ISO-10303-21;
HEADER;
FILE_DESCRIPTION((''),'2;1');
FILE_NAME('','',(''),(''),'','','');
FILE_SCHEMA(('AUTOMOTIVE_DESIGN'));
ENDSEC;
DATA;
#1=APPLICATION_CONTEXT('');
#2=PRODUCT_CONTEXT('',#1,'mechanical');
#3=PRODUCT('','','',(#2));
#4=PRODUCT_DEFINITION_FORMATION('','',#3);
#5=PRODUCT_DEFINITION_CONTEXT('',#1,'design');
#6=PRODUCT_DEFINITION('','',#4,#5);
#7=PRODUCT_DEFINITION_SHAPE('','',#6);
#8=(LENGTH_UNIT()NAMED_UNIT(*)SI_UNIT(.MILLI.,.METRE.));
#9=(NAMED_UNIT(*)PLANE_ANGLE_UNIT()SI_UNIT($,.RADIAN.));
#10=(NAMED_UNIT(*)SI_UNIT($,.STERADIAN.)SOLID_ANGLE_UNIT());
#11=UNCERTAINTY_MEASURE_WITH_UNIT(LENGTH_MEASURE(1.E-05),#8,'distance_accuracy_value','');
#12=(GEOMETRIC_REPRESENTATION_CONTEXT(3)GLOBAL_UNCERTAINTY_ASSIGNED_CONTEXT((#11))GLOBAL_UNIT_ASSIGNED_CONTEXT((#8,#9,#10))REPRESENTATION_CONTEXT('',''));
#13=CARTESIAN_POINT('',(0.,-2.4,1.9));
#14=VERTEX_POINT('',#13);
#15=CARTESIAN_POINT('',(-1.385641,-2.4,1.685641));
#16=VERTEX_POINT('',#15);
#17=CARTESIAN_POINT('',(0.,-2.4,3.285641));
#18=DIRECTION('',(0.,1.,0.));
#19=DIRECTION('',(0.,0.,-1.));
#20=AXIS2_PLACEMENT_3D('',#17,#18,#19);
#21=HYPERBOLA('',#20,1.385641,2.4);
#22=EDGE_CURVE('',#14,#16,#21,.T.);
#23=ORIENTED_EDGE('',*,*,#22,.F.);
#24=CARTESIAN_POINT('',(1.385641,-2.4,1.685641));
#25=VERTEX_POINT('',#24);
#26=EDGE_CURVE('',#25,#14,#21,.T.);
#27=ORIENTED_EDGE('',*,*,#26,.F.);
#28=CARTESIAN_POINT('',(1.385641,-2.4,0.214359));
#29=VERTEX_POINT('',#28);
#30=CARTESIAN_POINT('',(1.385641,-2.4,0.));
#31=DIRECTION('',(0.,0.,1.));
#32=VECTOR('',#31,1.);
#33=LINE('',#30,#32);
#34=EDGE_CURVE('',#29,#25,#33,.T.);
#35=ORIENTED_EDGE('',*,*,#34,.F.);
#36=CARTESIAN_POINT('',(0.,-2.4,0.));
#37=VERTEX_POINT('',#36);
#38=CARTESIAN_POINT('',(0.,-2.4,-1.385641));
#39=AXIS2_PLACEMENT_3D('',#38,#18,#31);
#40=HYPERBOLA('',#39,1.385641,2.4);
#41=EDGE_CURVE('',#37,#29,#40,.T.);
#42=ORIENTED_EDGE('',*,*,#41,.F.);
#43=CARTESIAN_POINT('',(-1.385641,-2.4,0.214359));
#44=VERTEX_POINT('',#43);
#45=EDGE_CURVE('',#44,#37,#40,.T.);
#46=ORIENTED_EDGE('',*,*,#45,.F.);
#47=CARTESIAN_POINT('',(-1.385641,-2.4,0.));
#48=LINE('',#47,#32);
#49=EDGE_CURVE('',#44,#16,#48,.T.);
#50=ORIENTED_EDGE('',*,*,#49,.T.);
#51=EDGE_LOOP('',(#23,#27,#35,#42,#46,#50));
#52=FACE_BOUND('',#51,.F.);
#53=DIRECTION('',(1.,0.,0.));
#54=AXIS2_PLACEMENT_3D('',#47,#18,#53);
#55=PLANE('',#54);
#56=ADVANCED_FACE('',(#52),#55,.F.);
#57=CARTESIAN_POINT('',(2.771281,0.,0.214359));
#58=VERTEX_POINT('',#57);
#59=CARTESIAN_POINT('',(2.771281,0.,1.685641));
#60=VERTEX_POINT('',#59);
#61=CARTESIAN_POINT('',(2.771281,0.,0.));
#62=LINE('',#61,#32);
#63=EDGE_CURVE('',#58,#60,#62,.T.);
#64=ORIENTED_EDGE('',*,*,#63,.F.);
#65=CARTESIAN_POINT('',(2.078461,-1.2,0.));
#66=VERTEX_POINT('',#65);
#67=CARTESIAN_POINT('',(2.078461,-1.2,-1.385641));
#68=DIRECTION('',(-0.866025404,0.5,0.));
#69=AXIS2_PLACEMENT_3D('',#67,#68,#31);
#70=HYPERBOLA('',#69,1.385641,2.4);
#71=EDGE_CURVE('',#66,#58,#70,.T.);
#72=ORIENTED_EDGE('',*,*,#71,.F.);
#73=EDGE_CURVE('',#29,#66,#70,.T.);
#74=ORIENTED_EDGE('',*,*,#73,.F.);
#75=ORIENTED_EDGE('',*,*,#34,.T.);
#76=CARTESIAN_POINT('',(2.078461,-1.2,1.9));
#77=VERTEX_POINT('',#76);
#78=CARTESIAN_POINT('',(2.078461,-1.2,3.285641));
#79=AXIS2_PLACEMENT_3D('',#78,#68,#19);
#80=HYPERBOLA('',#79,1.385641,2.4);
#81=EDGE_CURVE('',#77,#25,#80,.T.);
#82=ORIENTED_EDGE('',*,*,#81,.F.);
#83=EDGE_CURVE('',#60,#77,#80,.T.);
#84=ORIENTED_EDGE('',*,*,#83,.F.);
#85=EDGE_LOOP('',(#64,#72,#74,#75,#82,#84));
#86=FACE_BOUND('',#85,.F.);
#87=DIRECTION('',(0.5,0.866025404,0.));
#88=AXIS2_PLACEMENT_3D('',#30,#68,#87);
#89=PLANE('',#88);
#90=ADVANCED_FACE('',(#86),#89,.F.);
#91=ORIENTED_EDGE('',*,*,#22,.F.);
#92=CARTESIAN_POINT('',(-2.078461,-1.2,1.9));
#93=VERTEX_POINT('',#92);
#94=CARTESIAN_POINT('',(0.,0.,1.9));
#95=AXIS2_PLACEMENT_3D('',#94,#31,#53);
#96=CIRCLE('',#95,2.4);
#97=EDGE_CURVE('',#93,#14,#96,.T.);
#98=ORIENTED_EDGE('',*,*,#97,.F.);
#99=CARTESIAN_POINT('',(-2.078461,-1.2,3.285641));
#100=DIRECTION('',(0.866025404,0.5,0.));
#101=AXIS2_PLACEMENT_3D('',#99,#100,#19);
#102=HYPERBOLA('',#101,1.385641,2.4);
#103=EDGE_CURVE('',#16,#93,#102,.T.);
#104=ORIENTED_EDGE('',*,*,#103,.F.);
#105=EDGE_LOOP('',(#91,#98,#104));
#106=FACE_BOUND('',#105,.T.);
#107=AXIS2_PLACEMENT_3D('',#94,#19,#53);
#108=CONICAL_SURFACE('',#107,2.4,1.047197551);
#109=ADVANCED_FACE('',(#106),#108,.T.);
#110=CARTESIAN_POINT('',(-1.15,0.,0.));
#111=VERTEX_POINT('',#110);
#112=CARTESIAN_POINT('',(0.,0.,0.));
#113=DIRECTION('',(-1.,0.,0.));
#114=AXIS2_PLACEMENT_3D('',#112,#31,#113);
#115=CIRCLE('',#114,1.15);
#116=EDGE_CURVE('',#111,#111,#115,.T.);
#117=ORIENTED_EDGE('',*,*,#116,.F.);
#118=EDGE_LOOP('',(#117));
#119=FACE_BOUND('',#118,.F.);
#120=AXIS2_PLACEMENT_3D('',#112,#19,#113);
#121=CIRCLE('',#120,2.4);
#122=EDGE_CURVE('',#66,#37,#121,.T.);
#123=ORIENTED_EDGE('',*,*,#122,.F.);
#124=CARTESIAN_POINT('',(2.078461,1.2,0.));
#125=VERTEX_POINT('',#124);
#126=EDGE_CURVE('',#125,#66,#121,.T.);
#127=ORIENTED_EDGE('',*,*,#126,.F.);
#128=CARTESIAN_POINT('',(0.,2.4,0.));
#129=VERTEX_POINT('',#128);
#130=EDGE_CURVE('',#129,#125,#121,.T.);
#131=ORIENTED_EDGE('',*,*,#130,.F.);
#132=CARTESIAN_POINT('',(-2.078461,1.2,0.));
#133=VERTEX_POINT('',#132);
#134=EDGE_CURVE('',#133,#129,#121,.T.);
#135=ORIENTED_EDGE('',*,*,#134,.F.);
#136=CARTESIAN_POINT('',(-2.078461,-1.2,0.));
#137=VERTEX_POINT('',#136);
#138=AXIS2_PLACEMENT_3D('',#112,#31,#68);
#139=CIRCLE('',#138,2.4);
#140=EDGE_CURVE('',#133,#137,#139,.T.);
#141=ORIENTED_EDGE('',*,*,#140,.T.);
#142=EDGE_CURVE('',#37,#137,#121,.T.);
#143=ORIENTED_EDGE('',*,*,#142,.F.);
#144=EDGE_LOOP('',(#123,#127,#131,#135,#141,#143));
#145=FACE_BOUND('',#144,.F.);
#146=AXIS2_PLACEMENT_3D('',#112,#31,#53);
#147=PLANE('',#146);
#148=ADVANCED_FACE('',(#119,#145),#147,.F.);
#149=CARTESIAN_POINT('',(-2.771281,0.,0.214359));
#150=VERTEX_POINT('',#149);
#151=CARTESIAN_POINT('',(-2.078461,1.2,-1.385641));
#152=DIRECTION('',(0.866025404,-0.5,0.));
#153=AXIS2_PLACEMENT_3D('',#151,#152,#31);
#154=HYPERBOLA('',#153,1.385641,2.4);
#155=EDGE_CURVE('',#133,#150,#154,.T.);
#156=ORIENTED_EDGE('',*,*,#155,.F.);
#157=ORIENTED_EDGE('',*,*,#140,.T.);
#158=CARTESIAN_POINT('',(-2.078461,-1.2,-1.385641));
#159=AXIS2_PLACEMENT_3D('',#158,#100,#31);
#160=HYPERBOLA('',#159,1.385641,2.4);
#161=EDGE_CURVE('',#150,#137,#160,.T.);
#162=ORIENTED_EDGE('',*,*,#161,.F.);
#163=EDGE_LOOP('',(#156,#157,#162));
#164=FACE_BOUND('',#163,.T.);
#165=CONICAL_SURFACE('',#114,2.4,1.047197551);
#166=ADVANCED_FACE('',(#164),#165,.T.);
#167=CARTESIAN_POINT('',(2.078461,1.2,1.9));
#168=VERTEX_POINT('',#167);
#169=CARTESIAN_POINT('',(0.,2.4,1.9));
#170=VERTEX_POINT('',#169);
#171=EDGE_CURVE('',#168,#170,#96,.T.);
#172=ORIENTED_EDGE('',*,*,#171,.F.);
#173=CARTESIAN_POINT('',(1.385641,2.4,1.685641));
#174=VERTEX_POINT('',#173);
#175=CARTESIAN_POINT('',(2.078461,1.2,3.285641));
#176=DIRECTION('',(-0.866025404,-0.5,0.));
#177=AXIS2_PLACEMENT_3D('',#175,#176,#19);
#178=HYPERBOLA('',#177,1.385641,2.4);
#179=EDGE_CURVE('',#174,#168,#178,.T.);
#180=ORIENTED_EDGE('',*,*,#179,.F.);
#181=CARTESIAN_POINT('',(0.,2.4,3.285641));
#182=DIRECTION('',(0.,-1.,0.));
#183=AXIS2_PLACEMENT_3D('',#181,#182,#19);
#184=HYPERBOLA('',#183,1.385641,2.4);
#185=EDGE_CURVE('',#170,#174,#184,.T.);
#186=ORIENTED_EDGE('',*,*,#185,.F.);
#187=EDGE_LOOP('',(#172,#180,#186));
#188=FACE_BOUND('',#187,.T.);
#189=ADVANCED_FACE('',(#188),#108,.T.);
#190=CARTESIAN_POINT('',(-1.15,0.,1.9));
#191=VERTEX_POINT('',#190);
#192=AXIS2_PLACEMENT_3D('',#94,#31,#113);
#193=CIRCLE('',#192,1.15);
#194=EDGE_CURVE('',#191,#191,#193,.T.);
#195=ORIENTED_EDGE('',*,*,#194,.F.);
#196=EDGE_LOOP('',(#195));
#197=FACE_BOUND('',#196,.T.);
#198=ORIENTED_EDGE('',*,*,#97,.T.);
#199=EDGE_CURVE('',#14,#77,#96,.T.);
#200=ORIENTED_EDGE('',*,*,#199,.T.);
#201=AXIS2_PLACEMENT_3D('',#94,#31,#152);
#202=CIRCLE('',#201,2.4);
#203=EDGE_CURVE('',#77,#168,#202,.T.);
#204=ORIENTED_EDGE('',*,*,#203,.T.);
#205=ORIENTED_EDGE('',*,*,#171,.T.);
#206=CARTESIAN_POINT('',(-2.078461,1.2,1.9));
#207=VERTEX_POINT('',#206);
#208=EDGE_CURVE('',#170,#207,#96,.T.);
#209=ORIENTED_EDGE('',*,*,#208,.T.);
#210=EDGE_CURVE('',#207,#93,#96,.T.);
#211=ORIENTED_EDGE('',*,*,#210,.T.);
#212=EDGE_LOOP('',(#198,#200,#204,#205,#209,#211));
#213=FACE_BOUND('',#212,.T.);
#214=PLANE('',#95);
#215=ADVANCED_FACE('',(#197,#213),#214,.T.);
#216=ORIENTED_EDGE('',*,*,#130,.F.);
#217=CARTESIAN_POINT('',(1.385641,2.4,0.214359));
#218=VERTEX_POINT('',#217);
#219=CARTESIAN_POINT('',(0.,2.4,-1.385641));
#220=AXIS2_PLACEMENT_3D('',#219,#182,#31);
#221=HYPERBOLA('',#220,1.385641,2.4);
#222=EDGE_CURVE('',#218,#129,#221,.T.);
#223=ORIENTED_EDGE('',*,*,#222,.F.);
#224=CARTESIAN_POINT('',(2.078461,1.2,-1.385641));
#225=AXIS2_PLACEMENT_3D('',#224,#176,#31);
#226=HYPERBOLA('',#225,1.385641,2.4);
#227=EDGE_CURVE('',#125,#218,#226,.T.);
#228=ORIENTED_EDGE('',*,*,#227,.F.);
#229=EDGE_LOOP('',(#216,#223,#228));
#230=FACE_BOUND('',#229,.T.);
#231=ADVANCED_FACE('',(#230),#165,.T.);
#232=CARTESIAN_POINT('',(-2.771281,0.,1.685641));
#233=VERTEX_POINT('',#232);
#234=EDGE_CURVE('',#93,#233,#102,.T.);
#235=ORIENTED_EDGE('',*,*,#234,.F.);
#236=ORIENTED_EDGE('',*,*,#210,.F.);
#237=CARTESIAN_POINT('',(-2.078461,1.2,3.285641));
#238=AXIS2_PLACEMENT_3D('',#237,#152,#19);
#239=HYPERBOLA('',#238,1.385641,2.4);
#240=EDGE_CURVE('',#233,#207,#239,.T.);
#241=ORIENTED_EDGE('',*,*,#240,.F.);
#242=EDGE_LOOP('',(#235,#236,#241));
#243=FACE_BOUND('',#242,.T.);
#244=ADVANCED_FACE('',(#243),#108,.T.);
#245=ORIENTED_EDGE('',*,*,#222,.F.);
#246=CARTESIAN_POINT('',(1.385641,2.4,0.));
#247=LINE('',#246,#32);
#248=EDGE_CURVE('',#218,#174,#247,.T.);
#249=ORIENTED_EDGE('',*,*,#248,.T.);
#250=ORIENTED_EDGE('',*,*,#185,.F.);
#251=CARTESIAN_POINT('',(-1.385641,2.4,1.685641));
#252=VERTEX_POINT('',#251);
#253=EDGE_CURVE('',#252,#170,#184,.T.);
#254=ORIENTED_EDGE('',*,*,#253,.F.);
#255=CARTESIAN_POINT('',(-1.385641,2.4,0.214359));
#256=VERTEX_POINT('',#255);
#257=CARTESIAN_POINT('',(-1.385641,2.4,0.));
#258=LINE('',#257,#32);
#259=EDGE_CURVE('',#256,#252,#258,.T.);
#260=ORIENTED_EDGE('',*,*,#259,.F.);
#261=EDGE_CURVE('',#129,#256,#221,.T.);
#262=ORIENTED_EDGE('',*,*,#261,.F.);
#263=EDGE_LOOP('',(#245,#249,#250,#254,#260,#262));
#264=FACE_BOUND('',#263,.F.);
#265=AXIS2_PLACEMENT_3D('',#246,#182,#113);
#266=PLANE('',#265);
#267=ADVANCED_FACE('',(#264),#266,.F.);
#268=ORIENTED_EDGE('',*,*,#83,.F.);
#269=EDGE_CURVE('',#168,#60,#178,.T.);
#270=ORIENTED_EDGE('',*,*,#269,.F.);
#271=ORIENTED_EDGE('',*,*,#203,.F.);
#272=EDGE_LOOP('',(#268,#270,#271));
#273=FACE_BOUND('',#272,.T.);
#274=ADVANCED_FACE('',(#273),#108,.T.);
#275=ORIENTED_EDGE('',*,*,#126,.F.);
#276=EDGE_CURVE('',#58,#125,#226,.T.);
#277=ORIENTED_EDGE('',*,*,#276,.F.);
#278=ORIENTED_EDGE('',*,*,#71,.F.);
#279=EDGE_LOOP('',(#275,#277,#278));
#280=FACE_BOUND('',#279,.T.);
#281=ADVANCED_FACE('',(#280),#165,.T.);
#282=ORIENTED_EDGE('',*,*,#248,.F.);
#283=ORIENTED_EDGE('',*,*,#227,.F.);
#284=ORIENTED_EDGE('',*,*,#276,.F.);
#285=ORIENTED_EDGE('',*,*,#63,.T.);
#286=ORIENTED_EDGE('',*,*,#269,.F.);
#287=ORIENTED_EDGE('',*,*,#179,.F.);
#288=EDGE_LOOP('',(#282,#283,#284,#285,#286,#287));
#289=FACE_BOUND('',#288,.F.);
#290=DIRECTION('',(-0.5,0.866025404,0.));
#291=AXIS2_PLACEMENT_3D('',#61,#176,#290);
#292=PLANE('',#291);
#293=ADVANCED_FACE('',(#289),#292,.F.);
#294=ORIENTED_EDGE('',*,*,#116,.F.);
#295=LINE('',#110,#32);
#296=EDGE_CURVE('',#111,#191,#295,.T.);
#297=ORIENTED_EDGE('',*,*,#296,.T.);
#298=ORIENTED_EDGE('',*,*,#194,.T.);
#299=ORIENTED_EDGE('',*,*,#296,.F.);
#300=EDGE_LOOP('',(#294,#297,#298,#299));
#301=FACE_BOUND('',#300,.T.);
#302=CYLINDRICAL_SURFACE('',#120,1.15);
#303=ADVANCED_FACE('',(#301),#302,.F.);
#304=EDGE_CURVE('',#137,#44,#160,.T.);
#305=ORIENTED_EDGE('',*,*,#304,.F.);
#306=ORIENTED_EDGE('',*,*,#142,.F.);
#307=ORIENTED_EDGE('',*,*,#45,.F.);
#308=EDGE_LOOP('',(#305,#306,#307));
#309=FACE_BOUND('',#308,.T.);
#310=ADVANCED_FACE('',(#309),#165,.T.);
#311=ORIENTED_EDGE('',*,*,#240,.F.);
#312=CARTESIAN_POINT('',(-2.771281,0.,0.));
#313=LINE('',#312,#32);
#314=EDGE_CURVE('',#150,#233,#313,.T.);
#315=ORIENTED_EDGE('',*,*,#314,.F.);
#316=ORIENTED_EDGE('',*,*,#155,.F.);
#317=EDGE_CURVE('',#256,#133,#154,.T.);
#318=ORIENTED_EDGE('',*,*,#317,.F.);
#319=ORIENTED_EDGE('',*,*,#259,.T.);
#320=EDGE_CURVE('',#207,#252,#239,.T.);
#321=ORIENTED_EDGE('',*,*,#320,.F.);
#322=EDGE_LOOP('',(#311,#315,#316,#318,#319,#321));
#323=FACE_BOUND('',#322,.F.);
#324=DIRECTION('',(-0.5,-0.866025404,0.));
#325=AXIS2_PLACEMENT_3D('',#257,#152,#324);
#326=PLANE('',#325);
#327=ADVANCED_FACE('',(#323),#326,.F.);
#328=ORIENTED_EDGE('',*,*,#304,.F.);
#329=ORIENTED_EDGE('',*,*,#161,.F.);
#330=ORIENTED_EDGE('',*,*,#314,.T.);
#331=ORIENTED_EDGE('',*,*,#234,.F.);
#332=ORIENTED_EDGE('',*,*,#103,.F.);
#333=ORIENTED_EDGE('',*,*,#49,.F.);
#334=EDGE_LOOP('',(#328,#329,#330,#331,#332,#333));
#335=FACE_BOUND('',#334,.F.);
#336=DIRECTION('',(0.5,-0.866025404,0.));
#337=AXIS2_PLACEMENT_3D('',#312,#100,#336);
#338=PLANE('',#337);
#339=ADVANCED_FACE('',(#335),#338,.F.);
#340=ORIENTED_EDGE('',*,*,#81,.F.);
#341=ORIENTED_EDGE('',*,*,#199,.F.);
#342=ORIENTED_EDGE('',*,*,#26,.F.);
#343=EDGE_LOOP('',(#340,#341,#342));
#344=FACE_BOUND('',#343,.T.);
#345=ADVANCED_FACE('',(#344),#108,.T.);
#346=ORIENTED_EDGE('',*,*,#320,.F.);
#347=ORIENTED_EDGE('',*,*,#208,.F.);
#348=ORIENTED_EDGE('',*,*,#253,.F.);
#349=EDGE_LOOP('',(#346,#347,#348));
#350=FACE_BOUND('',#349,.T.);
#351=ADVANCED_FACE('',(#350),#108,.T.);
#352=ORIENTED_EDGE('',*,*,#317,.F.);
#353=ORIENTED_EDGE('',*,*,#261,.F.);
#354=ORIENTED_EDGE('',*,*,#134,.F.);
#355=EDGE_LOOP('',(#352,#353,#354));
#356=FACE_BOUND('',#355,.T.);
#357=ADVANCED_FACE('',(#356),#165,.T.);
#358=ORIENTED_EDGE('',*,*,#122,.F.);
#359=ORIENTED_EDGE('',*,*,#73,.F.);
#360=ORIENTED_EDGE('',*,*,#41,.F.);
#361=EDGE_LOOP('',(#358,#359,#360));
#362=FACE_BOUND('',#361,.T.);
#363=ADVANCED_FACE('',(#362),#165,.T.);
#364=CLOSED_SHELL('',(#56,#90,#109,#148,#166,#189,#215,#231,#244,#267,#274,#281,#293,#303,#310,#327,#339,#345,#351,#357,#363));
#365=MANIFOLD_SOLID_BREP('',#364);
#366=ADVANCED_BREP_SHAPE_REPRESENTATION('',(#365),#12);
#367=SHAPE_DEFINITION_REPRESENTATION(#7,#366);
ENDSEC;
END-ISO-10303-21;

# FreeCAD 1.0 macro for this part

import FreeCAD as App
import Part
import Sketcher
from FreeCAD import Vector
Q = App.Units.Quantity


def faces_at(feature, points):
    """Names of the faces that lie closest to the given points."""
    faces = feature.Shape.Faces
    near = lambda p: min(range(len(faces)), key=lambda i: faces[i].distToShape(Part.Vertex(*p))[0])
    return sorted({f"Face{near(p) + 1}" for p in points})

doc = App.newDocument("Part")
body = doc.addObject("PartDesign::Body", "Body")

# Sketch on XY plane
sketch1 = body.newObject("Sketcher::SketchObject", "Sketch")
sketch1.AttachmentSupport = (doc.getObject("XY_Plane"), [""])
sketch1.MapMode = "FlatFace"
sketch1.addGeometry([
    Part.LineSegment(Vector(-1.4, 2.4, 0), Vector(-2.8, 0, 0)),  # 0
    Part.LineSegment(Vector(-2.8, 0, 0), Vector(-1.4, -2.4, 0)),  # 1
    Part.LineSegment(Vector(-1.4, -2.4, 0), Vector(1.4, -2.4, 0)),  # 2
    Part.LineSegment(Vector(1.4, -2.4, 0), Vector(2.8, 0, 0)),  # 3
    Part.LineSegment(Vector(2.8, 0, 0), Vector(1.4, 2.4, 0)),  # 4
    Part.LineSegment(Vector(1.4, 2.4, 0), Vector(-1.4, 2.4, 0)),  # 5
    Part.Circle(Vector(0, 0, 0), Vector(0, 0, 1), 1.1),  # 6
], False)
sketch1.addConstraint([
    Sketcher.Constraint("Coincident", 0, 2, 1, 1),
    Sketcher.Constraint("Coincident", 1, 2, 2, 1),
    Sketcher.Constraint("Coincident", 2, 2, 3, 1),
    Sketcher.Constraint("Coincident", 3, 2, 4, 1),
    Sketcher.Constraint("Coincident", 4, 2, 5, 1),
    Sketcher.Constraint("Coincident", 5, 2, 0, 1),
    Sketcher.Constraint("Horizontal", 2),
    Sketcher.Constraint("Horizontal", 5),
    Sketcher.Constraint("Coincident", 6, 3, -1, 1),
    Sketcher.Constraint("Symmetric", 0, 2, 3, 2, -1, 1),
    Sketcher.Constraint("Symmetric", 1, 2, 4, 2, -1, 1),
    Sketcher.Constraint("PointOnObject", 0, 2, -1),
    Sketcher.Constraint("Parallel", 0, 3),
    Sketcher.Constraint("Vertical", 2, 2, 4, 2),
    Sketcher.Constraint("Diameter", 6, 2.3),
    Sketcher.Constraint("Angle", 0, Q("-120 deg")),
    Sketcher.Constraint("DistanceY", 1, 2, -1, 1, 2.4),
    Sketcher.Constraint("DistanceX", 2, 1, 2, 2, 2.771281),
])
pad1 = body.newObject("PartDesign::Pad", "Pad")
pad1.Profile = sketch1
pad1.Length = 1.9
body2 = doc.addObject("PartDesign::Body", "Body001")

# Sketch on XY plane
sketch2 = body2.newObject("Sketcher::SketchObject", "Sketch001")
sketch2.AttachmentSupport = (doc.getObject("XY_Plane001"), [""])
sketch2.MapMode = "FlatFace"
sketch2.AttachmentOffset = App.Placement(Vector(0, 0, 1.9), App.Rotation())
sketch2.addGeometry([
    Part.LineSegment(Vector(-21.8, 21.5, 0), Vector(-21.8, -21.5, 0)),  # 0
    Part.LineSegment(Vector(-21.8, -21.5, 0), Vector(21.8, -21.5, 0)),  # 1
    Part.LineSegment(Vector(21.8, -21.5, 0), Vector(21.8, 21.5, 0)),  # 2
    Part.LineSegment(Vector(21.8, 21.5, 0), Vector(-21.8, 21.5, 0)),  # 3
    Part.Circle(Vector(0, 0, 0), Vector(0, 0, 1), 2.4),  # 4
], False)
sketch2.addConstraint([
    Sketcher.Constraint("Coincident", 0, 2, 1, 1),
    Sketcher.Constraint("Coincident", 1, 2, 2, 1),
    Sketcher.Constraint("Coincident", 2, 2, 3, 1),
    Sketcher.Constraint("Coincident", 3, 2, 0, 1),
    Sketcher.Constraint("Vertical", 0),
    Sketcher.Constraint("Horizontal", 1),
    Sketcher.Constraint("Vertical", 2),
    Sketcher.Constraint("Horizontal", 3),
    Sketcher.Constraint("Coincident", 4, 3, -1, 1),
    Sketcher.Constraint("Symmetric", 0, 2, 2, 2, -1, 1),
    Sketcher.Constraint("Diameter", 4, 4.8),
    Sketcher.Constraint("DistanceX", 1, 1, 1, 2, 43.698),
    Sketcher.Constraint("DistanceY", 0, 2, 0, 1, 42.956),
])
pad2 = body2.newObject("PartDesign::Pad", "Pad001")
pad2.Profile = sketch2
pad2.Length = 10
pad2.Reversed = True
doc.recompute()

datumplane = body2.newObject("PartDesign::Plane", "DatumPlane")
datumplane.AttachmentSupport = (doc.getObject("XY_Plane001"), [""])
datumplane.MapMode = "FlatFace"
datumplane.AttachmentOffset = App.Placement(Vector(0, 0, 1.9), App.Rotation())
draft = body2.newObject("PartDesign::Draft", "Draft")
draft.Base = (pad2, faces_at(pad2, [
    (0, -21.478, -3.1),
    (21.849, 0, -3.1),
    (0, 21.478, -3.1),
    (-21.849, 0, -3.1),
    (-2.4, 0, -3.1),
]))
draft.NeutralPlane = (datumplane, [""])
draft.Angle = 60
draft.Reversed = True
doc.recompute()

boolean = body.newObject("PartDesign::Boolean", "Boolean")
boolean.Type = "Cut"
boolean.addObjects([body2])
body3 = doc.addObject("PartDesign::Body", "Body002")

# Sketch on XY plane
sketch3 = body3.newObject("Sketcher::SketchObject", "Sketch002")
sketch3.AttachmentSupport = (doc.getObject("XY_Plane002"), [""])
sketch3.MapMode = "FlatFace"
sketch3.addGeometry([
    Part.LineSegment(Vector(21.8, 21.5, 0), Vector(21.8, -21.5, 0)),  # 0
    Part.LineSegment(Vector(21.8, -21.5, 0), Vector(-21.8, -21.5, 0)),  # 1
    Part.LineSegment(Vector(-21.8, -21.5, 0), Vector(-21.8, 21.5, 0)),  # 2
    Part.LineSegment(Vector(-21.8, 21.5, 0), Vector(21.8, 21.5, 0)),  # 3
    Part.Circle(Vector(0, 0, 0), Vector(0, 0, 1), 2.4),  # 4
], False)
sketch3.addConstraint([
    Sketcher.Constraint("Coincident", 0, 2, 1, 1),
    Sketcher.Constraint("Coincident", 1, 2, 2, 1),
    Sketcher.Constraint("Coincident", 2, 2, 3, 1),
    Sketcher.Constraint("Coincident", 3, 2, 0, 1),
    Sketcher.Constraint("Vertical", 0),
    Sketcher.Constraint("Horizontal", 1),
    Sketcher.Constraint("Vertical", 2),
    Sketcher.Constraint("Horizontal", 3),
    Sketcher.Constraint("Coincident", 4, 3, -1, 1),
    Sketcher.Constraint("Symmetric", 0, 2, 2, 2, -1, 1),
    Sketcher.Constraint("Diameter", 4, 4.8),
    Sketcher.Constraint("DistanceX", 1, 2, 1, 1, 43.698),
    Sketcher.Constraint("DistanceY", 0, 2, 0, 1, 42.956),
])
pad3 = body3.newObject("PartDesign::Pad", "Pad002")
pad3.Profile = sketch3
pad3.Length = 10
doc.recompute()

draft2 = body3.newObject("PartDesign::Draft", "Draft001")
draft2.Base = (pad3, faces_at(pad3, [
    (0, -21.478, 5),
    (-21.849, 0, 5),
    (0, 21.478, 5),
    (21.849, 0, 5),
    (2.4, 0, 5),
]))
draft2.NeutralPlane = (doc.getObject("XY_Plane002"), [""])
draft2.Angle = 60
draft2.Reversed = False
doc.recompute()

boolean2 = body.newObject("PartDesign::Boolean", "Boolean001")
boolean2.Type = "Cut"
boolean2.addObjects([body3])

doc.recompute()
